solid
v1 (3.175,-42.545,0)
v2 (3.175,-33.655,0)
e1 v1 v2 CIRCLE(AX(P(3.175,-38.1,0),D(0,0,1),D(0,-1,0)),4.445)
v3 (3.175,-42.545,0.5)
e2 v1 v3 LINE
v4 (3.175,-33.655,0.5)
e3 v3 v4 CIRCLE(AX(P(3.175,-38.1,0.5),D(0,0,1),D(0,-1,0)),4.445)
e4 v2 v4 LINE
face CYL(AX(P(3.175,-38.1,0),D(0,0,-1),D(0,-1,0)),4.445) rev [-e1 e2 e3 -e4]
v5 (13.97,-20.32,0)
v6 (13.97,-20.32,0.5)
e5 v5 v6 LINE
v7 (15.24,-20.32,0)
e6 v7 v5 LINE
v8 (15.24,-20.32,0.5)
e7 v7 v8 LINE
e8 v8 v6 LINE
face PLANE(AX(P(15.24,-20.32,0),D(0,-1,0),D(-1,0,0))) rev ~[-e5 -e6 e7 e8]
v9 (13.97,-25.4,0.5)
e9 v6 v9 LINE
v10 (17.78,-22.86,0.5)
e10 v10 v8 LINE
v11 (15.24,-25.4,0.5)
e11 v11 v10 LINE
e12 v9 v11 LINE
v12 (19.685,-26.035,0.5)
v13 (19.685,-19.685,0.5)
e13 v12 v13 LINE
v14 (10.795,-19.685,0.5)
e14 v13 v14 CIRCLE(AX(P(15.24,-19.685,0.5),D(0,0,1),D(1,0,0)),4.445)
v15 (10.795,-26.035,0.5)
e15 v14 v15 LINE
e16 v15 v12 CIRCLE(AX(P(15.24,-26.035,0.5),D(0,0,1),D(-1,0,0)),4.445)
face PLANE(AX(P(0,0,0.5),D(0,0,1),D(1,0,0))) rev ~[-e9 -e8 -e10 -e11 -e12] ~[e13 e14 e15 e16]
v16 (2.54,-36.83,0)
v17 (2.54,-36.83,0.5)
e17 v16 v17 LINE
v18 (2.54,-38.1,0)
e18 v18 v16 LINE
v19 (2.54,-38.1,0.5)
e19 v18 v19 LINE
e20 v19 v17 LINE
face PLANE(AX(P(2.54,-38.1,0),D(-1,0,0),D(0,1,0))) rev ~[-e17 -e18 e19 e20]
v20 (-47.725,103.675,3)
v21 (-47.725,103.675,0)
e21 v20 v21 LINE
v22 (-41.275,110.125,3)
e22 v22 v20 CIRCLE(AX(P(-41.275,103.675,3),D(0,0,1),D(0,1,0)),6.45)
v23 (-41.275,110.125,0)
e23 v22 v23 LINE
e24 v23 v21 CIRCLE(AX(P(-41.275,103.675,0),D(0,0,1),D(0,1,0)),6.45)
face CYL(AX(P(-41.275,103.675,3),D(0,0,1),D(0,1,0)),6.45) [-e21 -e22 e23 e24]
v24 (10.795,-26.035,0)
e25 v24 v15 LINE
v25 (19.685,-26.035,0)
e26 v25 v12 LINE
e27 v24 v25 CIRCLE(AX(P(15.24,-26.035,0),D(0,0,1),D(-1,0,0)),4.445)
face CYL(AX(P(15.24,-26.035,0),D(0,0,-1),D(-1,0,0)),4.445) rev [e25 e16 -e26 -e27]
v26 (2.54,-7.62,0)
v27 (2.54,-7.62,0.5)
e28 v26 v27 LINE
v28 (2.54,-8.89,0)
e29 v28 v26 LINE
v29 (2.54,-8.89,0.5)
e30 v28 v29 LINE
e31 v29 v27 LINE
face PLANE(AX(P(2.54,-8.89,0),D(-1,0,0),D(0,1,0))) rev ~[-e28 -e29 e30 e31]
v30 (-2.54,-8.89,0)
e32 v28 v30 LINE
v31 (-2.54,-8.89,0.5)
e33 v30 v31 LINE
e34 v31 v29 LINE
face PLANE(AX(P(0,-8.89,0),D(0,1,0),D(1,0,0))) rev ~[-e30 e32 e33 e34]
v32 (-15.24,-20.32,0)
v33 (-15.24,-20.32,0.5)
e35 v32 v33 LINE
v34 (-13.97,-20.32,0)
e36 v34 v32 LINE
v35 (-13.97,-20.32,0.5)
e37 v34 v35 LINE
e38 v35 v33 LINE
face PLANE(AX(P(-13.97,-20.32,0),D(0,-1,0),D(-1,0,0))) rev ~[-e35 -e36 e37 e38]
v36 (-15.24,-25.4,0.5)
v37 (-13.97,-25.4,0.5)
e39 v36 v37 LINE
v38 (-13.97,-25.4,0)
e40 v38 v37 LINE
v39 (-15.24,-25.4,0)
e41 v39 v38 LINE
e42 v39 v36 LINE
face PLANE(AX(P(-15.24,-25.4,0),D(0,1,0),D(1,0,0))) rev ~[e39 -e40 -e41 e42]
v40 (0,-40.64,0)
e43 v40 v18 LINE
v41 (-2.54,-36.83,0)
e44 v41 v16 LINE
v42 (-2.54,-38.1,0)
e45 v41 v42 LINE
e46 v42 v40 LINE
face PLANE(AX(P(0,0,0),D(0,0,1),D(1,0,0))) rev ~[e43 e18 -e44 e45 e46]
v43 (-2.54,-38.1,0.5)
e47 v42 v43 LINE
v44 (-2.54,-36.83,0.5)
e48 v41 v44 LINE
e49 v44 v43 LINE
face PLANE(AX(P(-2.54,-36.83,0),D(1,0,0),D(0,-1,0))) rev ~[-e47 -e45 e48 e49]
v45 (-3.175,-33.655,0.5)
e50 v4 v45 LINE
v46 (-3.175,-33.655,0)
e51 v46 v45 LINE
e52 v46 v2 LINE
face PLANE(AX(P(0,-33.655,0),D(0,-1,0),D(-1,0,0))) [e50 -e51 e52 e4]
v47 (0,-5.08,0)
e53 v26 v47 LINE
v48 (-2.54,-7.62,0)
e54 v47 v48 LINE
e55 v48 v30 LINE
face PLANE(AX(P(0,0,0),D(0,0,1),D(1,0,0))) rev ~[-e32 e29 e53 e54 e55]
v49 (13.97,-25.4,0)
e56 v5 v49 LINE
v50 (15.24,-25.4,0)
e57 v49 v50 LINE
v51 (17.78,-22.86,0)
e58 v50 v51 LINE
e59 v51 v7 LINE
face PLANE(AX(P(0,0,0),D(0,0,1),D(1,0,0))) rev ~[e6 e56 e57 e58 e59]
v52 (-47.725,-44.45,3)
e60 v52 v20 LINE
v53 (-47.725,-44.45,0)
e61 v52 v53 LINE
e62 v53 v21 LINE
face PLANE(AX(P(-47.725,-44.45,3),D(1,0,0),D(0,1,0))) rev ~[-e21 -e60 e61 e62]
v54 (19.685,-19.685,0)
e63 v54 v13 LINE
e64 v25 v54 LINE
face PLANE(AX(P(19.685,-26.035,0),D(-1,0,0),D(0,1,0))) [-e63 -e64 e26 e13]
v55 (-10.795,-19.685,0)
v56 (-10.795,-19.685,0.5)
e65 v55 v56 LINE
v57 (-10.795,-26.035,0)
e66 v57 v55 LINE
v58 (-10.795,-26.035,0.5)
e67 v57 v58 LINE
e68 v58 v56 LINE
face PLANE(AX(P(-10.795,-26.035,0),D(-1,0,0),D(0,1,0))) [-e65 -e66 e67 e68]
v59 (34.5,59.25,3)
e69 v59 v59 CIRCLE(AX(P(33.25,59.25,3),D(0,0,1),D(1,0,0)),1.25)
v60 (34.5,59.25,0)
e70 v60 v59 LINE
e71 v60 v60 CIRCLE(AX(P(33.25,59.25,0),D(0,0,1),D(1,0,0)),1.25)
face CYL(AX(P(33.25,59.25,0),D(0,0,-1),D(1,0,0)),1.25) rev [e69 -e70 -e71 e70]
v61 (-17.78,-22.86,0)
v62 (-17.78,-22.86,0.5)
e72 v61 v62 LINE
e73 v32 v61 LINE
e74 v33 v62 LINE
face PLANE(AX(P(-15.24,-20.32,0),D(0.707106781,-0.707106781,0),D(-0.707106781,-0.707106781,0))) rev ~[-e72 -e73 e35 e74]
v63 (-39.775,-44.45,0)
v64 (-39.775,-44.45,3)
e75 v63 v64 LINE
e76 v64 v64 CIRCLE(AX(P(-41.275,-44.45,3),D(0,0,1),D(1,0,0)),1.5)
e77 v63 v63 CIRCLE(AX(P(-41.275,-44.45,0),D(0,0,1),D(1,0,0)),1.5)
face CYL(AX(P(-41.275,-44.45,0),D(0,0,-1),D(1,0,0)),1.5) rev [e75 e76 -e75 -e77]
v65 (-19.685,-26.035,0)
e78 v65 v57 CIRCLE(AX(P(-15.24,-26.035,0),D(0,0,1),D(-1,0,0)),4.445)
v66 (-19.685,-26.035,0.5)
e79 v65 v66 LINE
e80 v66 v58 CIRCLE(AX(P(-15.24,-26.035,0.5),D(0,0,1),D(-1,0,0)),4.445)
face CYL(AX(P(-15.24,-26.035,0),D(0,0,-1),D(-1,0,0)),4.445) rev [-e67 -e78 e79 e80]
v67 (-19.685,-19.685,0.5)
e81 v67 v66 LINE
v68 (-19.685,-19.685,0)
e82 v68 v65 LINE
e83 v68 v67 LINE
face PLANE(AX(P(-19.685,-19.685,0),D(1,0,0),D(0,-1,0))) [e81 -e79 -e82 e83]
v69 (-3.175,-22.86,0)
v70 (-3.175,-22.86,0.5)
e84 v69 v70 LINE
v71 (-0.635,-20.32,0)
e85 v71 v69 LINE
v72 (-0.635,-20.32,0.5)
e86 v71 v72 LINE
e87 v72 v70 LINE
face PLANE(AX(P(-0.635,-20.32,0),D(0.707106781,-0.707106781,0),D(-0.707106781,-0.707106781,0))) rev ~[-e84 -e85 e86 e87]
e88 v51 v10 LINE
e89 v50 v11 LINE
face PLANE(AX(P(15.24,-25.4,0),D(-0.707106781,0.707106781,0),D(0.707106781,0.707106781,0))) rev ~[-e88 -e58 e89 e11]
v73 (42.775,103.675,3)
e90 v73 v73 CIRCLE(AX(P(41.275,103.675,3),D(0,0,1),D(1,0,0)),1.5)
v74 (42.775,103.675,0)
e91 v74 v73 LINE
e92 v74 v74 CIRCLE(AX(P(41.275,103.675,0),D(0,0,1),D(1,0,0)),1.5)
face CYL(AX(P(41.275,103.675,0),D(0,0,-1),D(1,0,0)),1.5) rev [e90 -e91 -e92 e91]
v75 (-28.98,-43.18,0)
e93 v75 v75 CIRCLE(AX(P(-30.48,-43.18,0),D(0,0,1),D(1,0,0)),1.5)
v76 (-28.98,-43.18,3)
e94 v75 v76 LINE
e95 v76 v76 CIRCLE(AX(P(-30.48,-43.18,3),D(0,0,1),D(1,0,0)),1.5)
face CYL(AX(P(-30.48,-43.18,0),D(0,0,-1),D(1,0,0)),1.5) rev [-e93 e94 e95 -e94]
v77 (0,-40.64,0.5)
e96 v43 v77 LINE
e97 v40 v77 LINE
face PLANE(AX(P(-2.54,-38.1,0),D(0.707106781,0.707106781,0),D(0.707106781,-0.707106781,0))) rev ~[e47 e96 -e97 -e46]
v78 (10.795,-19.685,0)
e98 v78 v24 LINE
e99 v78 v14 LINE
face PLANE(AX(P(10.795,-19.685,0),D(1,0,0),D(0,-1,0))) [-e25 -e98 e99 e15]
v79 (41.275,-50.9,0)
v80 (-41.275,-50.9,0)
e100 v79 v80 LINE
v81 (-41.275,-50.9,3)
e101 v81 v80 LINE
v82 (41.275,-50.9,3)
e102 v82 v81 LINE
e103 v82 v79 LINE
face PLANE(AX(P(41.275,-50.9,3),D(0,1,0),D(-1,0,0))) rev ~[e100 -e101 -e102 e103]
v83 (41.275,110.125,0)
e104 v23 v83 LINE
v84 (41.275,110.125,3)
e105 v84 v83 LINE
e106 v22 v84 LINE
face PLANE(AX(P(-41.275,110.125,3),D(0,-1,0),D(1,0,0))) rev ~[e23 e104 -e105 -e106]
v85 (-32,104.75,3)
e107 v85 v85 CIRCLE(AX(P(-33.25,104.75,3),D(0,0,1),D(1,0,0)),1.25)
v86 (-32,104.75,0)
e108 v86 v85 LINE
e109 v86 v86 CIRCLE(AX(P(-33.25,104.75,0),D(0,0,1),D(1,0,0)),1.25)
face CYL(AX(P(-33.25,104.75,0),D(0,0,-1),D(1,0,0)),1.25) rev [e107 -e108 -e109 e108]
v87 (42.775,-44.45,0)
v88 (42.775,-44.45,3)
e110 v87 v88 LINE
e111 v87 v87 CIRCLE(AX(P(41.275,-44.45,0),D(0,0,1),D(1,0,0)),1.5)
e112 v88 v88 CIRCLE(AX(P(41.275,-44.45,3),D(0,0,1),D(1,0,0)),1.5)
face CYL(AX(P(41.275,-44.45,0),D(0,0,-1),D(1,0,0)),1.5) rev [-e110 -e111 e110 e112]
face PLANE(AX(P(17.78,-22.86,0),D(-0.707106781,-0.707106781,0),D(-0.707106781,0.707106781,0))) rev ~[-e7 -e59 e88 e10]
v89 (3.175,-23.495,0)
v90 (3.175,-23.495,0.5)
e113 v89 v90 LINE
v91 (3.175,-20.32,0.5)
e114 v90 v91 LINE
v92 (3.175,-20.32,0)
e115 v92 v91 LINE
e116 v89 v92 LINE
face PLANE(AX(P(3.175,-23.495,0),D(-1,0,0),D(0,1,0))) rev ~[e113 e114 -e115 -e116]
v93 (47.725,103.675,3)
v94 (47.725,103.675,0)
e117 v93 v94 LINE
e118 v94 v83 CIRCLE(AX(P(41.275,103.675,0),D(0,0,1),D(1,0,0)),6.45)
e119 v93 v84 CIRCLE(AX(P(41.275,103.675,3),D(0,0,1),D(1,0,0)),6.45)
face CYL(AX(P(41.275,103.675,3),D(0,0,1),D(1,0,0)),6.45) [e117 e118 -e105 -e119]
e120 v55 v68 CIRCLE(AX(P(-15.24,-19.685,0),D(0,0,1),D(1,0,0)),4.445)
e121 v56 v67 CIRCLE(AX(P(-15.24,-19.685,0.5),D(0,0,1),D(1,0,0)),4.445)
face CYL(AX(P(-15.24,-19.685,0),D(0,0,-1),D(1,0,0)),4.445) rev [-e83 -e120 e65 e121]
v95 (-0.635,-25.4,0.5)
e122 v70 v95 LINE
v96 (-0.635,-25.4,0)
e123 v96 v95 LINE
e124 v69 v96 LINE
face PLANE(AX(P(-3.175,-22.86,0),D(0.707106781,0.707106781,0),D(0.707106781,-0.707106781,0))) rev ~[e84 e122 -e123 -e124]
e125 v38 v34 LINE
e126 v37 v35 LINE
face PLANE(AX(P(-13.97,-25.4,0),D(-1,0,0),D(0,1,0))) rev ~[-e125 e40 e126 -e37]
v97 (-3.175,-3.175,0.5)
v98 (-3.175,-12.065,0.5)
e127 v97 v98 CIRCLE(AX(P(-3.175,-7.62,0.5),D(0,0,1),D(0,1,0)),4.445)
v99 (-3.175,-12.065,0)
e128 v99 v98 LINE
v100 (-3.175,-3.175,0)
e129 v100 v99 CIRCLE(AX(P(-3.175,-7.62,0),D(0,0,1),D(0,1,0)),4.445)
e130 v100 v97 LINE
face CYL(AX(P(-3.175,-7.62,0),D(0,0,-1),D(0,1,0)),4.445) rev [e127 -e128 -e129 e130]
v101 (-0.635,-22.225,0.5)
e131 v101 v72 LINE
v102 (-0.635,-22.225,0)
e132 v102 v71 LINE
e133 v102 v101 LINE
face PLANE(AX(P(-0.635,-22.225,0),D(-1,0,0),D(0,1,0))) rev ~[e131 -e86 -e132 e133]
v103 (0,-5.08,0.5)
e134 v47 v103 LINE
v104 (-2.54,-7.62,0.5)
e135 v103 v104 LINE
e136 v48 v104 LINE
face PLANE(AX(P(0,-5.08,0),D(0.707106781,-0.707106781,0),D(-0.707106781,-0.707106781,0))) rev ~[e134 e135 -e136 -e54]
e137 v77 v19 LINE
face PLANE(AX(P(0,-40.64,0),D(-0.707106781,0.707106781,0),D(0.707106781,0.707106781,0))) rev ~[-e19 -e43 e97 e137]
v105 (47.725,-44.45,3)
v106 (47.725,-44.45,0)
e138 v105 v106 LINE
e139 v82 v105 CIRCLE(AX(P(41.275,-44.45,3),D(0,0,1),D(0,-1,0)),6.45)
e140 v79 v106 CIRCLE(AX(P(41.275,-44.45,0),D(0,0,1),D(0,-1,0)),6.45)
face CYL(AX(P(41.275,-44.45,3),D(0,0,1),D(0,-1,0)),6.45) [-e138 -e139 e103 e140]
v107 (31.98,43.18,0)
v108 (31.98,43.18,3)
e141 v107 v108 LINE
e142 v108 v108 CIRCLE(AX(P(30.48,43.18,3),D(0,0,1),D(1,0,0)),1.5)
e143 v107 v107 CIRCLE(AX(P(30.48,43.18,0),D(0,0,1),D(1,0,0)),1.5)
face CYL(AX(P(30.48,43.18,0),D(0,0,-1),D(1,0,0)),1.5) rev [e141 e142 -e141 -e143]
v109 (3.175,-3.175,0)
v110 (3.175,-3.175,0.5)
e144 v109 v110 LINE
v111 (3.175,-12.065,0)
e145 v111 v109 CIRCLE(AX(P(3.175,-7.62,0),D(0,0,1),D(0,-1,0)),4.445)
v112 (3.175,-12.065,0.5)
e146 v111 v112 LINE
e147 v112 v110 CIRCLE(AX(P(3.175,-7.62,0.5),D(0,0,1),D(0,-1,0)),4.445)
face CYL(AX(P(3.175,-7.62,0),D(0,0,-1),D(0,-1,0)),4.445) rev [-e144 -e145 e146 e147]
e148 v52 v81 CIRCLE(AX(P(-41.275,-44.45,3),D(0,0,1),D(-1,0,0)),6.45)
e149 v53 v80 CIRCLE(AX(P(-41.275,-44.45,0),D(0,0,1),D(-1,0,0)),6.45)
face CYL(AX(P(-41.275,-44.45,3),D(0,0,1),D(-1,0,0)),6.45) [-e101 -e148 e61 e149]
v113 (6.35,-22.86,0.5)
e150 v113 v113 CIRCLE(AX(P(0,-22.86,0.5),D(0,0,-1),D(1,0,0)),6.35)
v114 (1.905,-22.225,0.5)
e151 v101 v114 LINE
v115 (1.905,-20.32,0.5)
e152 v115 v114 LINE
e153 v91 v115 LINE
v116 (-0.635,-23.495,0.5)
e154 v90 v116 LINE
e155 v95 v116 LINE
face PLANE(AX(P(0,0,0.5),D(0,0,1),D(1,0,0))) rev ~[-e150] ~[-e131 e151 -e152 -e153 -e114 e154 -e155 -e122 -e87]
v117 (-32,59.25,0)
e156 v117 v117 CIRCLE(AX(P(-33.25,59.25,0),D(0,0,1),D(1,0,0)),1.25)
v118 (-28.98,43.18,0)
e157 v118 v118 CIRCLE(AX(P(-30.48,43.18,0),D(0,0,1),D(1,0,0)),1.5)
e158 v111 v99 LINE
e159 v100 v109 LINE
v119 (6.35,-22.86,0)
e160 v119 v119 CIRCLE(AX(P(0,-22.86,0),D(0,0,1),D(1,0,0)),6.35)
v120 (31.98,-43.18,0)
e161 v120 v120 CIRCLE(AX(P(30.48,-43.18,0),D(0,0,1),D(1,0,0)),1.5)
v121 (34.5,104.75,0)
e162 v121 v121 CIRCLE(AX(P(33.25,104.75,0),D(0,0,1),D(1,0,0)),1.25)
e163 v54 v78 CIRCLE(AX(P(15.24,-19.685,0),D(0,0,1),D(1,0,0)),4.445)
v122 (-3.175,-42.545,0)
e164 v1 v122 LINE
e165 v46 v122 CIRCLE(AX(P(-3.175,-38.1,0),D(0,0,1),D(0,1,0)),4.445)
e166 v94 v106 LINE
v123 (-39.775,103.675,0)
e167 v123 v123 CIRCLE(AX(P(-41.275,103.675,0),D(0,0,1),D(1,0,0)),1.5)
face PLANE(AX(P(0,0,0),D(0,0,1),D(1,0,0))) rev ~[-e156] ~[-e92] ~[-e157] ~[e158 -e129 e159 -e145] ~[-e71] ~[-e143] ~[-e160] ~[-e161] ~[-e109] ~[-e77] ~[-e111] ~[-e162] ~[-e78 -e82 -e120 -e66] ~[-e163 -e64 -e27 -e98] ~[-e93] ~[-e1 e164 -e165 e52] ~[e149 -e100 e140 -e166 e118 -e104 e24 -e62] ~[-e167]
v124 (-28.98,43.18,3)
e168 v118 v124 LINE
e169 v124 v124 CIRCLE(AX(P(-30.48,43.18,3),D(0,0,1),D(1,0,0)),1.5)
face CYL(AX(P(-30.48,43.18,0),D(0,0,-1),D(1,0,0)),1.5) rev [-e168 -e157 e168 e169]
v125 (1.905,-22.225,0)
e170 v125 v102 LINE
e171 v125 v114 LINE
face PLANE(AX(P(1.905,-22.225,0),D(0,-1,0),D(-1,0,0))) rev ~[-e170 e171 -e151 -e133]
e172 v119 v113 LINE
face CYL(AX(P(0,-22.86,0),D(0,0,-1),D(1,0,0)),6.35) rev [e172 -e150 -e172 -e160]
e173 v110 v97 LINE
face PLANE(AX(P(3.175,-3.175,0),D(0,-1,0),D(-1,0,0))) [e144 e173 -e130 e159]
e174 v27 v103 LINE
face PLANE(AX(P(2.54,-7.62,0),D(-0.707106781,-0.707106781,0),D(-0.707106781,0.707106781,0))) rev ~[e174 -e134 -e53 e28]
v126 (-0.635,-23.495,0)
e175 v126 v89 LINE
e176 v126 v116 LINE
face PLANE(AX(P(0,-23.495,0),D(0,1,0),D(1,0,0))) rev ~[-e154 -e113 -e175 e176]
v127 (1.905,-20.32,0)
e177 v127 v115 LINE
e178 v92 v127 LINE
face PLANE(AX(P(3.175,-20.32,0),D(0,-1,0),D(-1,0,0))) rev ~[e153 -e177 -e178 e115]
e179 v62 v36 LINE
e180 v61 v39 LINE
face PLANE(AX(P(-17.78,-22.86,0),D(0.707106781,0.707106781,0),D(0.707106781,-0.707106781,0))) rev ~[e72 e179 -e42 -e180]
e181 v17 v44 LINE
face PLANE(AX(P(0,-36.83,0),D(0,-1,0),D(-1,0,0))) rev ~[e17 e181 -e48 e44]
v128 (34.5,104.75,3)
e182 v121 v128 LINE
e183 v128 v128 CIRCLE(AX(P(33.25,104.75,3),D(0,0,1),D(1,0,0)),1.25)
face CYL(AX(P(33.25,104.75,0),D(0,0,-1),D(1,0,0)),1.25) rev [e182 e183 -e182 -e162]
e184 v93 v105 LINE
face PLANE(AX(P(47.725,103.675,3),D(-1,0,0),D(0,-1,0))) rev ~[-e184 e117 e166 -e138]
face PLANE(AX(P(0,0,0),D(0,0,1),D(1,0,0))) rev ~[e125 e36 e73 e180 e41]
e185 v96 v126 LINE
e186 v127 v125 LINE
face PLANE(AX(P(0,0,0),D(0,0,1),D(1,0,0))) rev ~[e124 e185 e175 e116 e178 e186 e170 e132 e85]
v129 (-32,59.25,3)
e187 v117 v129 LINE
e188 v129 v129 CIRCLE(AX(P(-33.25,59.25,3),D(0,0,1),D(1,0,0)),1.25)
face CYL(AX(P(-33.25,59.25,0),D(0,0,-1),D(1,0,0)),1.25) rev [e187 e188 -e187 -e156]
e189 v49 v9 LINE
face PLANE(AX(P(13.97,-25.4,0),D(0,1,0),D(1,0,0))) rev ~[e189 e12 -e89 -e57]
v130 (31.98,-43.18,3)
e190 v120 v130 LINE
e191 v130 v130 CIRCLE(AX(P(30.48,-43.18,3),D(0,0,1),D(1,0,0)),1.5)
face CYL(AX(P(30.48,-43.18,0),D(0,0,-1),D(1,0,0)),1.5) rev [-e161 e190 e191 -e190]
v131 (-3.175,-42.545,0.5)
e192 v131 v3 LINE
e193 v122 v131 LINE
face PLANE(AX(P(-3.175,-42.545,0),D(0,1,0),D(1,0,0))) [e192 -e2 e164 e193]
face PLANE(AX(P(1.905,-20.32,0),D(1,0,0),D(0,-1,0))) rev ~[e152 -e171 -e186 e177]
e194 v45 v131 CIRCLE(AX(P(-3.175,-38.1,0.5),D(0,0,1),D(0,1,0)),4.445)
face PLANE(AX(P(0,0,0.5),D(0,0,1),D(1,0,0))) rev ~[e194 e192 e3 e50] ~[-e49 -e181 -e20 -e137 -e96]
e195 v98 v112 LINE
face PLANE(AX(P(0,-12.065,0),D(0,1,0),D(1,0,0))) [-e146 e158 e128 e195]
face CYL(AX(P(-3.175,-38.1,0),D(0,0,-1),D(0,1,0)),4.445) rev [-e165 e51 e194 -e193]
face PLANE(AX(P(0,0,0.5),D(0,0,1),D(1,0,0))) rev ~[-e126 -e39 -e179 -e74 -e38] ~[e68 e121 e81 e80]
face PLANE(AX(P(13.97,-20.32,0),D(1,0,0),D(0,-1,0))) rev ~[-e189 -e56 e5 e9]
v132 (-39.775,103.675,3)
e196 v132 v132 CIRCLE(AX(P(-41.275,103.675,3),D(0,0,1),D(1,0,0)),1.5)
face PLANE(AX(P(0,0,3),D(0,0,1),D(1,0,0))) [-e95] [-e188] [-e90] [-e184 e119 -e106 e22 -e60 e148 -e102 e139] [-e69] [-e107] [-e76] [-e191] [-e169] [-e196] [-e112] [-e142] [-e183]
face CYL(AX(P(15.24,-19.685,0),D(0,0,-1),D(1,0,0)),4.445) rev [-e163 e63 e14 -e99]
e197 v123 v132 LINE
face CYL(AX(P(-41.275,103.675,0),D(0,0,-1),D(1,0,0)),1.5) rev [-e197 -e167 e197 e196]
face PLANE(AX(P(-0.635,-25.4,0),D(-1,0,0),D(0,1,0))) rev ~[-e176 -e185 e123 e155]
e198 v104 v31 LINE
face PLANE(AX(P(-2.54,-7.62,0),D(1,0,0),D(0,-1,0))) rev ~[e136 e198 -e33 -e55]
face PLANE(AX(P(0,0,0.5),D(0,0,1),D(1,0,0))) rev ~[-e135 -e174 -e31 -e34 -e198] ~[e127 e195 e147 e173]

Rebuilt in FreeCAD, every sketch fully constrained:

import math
import FreeCAD as App
import Part
import Sketcher
from FreeCAD import Vector
Q = App.Units.Quantity

doc = App.newDocument("Part")
body = doc.addObject("PartDesign::Body", "Body")

# Sketch on XY plane
sketch1 = body.newObject("Sketcher::SketchObject", "Sketch")
sketch1.AttachmentSupport = (doc.getObject("XY_Plane"), [""])
sketch1.MapMode = "FlatFace"
sketch1.addGeometry([
    Part.LineSegment(Vector(41.275, 110.025, 0), Vector(-41.275, 110.025, 0)),  # 0
    Part.ArcOfCircle(Part.Circle(Vector(-41.275, 103.675, 0), Vector(0, 0, 1), 6.35), math.radians(90), math.radians(180)),  # 1
    Part.LineSegment(Vector(-47.625, 103.675, 0), Vector(-47.625, -44.45, 0)),  # 2
    Part.ArcOfCircle(Part.Circle(Vector(-41.275, -44.45, 0), Vector(0, 0, 1), 6.35), math.radians(180), math.radians(270)),  # 3
    Part.LineSegment(Vector(-41.275, -50.8, 0), Vector(41.275, -50.8, 0)),  # 4
    Part.ArcOfCircle(Part.Circle(Vector(41.275, -44.45, 0), Vector(0, 0, 1), 6.35), math.radians(-90), math.radians(0)),  # 5
    Part.LineSegment(Vector(47.625, -44.45, 0), Vector(47.625, 103.675, 0)),  # 6
    Part.ArcOfCircle(Part.Circle(Vector(41.275, 103.675, 0), Vector(0, 0, 1), 6.35), math.radians(0), math.radians(90)),  # 7
    Part.Circle(Vector(33.25, 104.75, 0), Vector(0, 0, 1), 1.25),  # 8
    Part.Circle(Vector(41.275, 103.675, 0), Vector(0, 0, 1), 1.5),  # 9
    Part.Circle(Vector(30.48, -43.18, 0), Vector(0, 0, 1), 1.5),  # 10
    Part.Circle(Vector(41.275, -44.45, 0), Vector(0, 0, 1), 1.5),  # 11
    Part.Circle(Vector(30.48, 43.18, 0), Vector(0, 0, 1), 1.5),  # 12
    Part.Circle(Vector(33.25, 59.25, 0), Vector(0, 0, 1), 1.25),  # 13
    Part.Circle(Vector(-30.48, 43.18, 0), Vector(0, 0, 1), 1.5),  # 14
    Part.Circle(Vector(-33.25, 59.25, 0), Vector(0, 0, 1), 1.25),  # 15
    Part.Circle(Vector(-41.275, 103.675, 0), Vector(0, 0, 1), 1.5),  # 16
    Part.Circle(Vector(-33.25, 104.75, 0), Vector(0, 0, 1), 1.25),  # 17
    Part.Circle(Vector(-41.275, -44.45, 0), Vector(0, 0, 1), 1.5),  # 18
    Part.Circle(Vector(-30.48, -43.18, 0), Vector(0, 0, 1), 1.5),  # 19
], False)
sketch1.addConstraint([
    Sketcher.Constraint("Tangent", 0, 2, 1, 1),
    Sketcher.Constraint("Tangent", 1, 2, 2, 1),
    Sketcher.Constraint("Tangent", 2, 2, 3, 1),
    Sketcher.Constraint("Tangent", 3, 2, 4, 1),
    Sketcher.Constraint("Tangent", 4, 2, 5, 1),
    Sketcher.Constraint("Tangent", 5, 2, 6, 1),
    Sketcher.Constraint("Tangent", 6, 2, 7, 1),
    Sketcher.Constraint("Tangent", 7, 2, 0, 1),
    Sketcher.Constraint("Horizontal", 0),
    Sketcher.Constraint("Vertical", 2),
    Sketcher.Constraint("Horizontal", 4),
    Sketcher.Constraint("Vertical", 6),
    Sketcher.Constraint("Coincident", 9, 3, 7, 3),
    Sketcher.Constraint("Coincident", 11, 3, 5, 3),
    Sketcher.Constraint("Coincident", 16, 3, 1, 3),
    Sketcher.Constraint("Coincident", 18, 3, 3, 3),
    Sketcher.Constraint("Equal", 1, 3),
    Sketcher.Constraint("Equal", 3, 5),
    Sketcher.Constraint("Equal", 5, 7),
    Sketcher.Constraint("Equal", 9, 10),
    Sketcher.Constraint("Equal", 10, 11),
    Sketcher.Constraint("Equal", 11, 12),
    Sketcher.Constraint("Equal", 8, 13),
    Sketcher.Constraint("Equal", 12, 14),
    Sketcher.Constraint("Equal", 13, 15),
    Sketcher.Constraint("Equal", 14, 16),
    Sketcher.Constraint("Equal", 15, 17),
    Sketcher.Constraint("Equal", 16, 18),
    Sketcher.Constraint("Equal", 18, 19),
    Sketcher.Constraint("Symmetric", 10, 3, 14, 3, -1, 1),
    Sketcher.Constraint("Symmetric", 12, 3, 19, 3, -1, 1),
    Sketcher.Constraint("Symmetric", 12, 3, 14, 3, -2),
    Sketcher.Constraint("Symmetric", 13, 3, 15, 3, -2),
    Sketcher.Constraint("Symmetric", 8, 3, 17, 3, -2),
    Sketcher.Constraint("Vertical", 8, 3, 13, 3),
    Sketcher.Constraint("Radius", 1, Q("0.25 in")),
    Sketcher.Constraint("Diameter", 9, Q("0.1181 in")),
    Sketcher.Constraint("DistanceX", 2, 2, 5, 3, Q("3.5 in")),
    Sketcher.Constraint("Diameter", 8, 2.5),
    Sketcher.Constraint("DistanceY", 5, 3, 10, 3, Q("0.05 in")),
    Sketcher.Constraint("DistanceY", 3, 2, -1, 1, Q("2 in")),
    Sketcher.Constraint("DistanceX", -1, 1, 10, 3, Q("1.2 in")),
    Sketcher.Constraint("DistanceX", 15, 3, 13, 3, Q("2.6181 in")),
    Sketcher.Constraint("DistanceY", 13, 3, 8, 3, 45.5),
    Sketcher.Constraint("DistanceY", 2, 2, 2, 1, Q("5.8317 in")),
    Sketcher.Constraint("DistanceX", 1, 3, -1, 1, Q("1.625 in")),
    Sketcher.Constraint("DistanceY", -1, 1, 8, 3, 104.75),
])
pad1 = body.newObject("PartDesign::Pad", "Pad")
pad1.Profile = sketch1
pad1.Length = Q("0.1181102 in")

# Sketch on XY plane
sketch2 = body.newObject("Sketcher::SketchObject", "Sketch001")
sketch2.AttachmentSupport = (doc.getObject("XY_Plane"), [""])
sketch2.MapMode = "FlatFace"
sketch2.addGeometry([
    Part.Circle(Vector(0, -22.86, 0), Vector(0, 0, 1), 6.35),  # 0
    Part.LineSegment(Vector(3.175, -23.495, 0), Vector(-0.635, -23.495, 0)),  # 1
    Part.LineSegment(Vector(-0.635, -23.495, 0), Vector(-0.635, -25.4, 0)),  # 2
    Part.LineSegment(Vector(-0.635, -25.4, 0), Vector(-3.175, -22.86, 0)),  # 3
    Part.LineSegment(Vector(-3.175, -22.86, 0), Vector(-0.635, -20.32, 0)),  # 4
    Part.LineSegment(Vector(-0.635, -20.32, 0), Vector(-0.635, -22.225, 0)),  # 5
    Part.LineSegment(Vector(-0.635, -22.225, 0), Vector(1.905, -22.225, 0)),  # 6
    Part.LineSegment(Vector(1.905, -22.225, 0), Vector(1.905, -20.32, 0)),  # 7
    Part.LineSegment(Vector(1.905, -20.32, 0), Vector(3.175, -20.32, 0)),  # 8
    Part.LineSegment(Vector(3.175, -20.32, 0), Vector(3.175, -23.495, 0)),  # 9
    Part.LineSegment(Vector(3.175, -3.175, 0), Vector(-3.175, -3.175, 0)),  # 10
    Part.ArcOfCircle(Part.Circle(Vector(-3.175, -7.62, 0), Vector(0, 0, 1), 4.445), math.radians(90), math.radians(270)),  # 11
    Part.LineSegment(Vector(-3.175, -12.065, 0), Vector(3.175, -12.065, 0)),  # 12
    Part.ArcOfCircle(Part.Circle(Vector(3.175, -7.62, 0), Vector(0, 0, 1), 4.445), math.radians(-90), math.radians(90)),  # 13
    Part.LineSegment(Vector(2.54, -8.89, 0), Vector(-2.54, -8.89, 0)),  # 14
    Part.LineSegment(Vector(-2.54, -8.89, 0), Vector(-2.54, -7.62, 0)),  # 15
    Part.LineSegment(Vector(-2.54, -7.62, 0), Vector(0, -5.08, 0)),  # 16
    Part.LineSegment(Vector(0, -5.08, 0), Vector(2.54, -7.62, 0)),  # 17
    Part.LineSegment(Vector(2.54, -7.62, 0), Vector(2.54, -8.89, 0)),  # 18
    Part.LineSegment(Vector(-3.175, -42.545, 0), Vector(3.175, -42.545, 0)),  # 19
    Part.ArcOfCircle(Part.Circle(Vector(3.175, -38.1, 0), Vector(0, 0, 1), 4.445), math.radians(-90), math.radians(90)),  # 20
    Part.LineSegment(Vector(3.175, -33.655, 0), Vector(-3.175, -33.655, 0)),  # 21
    Part.ArcOfCircle(Part.Circle(Vector(-3.175, -38.1, 0), Vector(0, 0, 1), 4.445), math.radians(90), math.radians(270)),  # 22
    Part.LineSegment(Vector(-2.54, -36.83, 0), Vector(2.54, -36.83, 0)),  # 23
    Part.LineSegment(Vector(2.54, -36.83, 0), Vector(2.54, -38.1, 0)),  # 24
    Part.LineSegment(Vector(2.54, -38.1, 0), Vector(0, -40.64, 0)),  # 25
    Part.LineSegment(Vector(0, -40.64, 0), Vector(-2.54, -38.1, 0)),  # 26
    Part.LineSegment(Vector(-2.54, -38.1, 0), Vector(-2.54, -36.83, 0)),  # 27
    Part.LineSegment(Vector(-19.685, -19.685, 0), Vector(-19.685, -26.035, 0)),  # 28
    Part.ArcOfCircle(Part.Circle(Vector(-15.24, -26.035, 0), Vector(0, 0, 1), 4.445), math.radians(180), math.radians(360)),  # 29
    Part.LineSegment(Vector(-10.795, -26.035, 0), Vector(-10.795, -19.685, 0)),  # 30
    Part.ArcOfCircle(Part.Circle(Vector(-15.24, -19.685, 0), Vector(0, 0, 1), 4.445), math.radians(0), math.radians(180)),  # 31
    Part.LineSegment(Vector(-13.97, -20.32, 0), Vector(-13.97, -25.4, 0)),  # 32
    Part.LineSegment(Vector(-13.97, -25.4, 0), Vector(-15.24, -25.4, 0)),  # 33
    Part.LineSegment(Vector(-15.24, -25.4, 0), Vector(-17.78, -22.86, 0)),  # 34
    Part.LineSegment(Vector(-17.78, -22.86, 0), Vector(-15.24, -20.32, 0)),  # 35
    Part.LineSegment(Vector(-15.24, -20.32, 0), Vector(-13.97, -20.32, 0)),  # 36
    Part.LineSegment(Vector(19.685, -26.035, 0), Vector(19.685, -19.685, 0)),  # 37
    Part.ArcOfCircle(Part.Circle(Vector(15.24, -19.685, 0), Vector(0, 0, 1), 4.445), math.radians(0), math.radians(180)),  # 38
    Part.LineSegment(Vector(10.795, -19.685, 0), Vector(10.795, -26.035, 0)),  # 39
    Part.ArcOfCircle(Part.Circle(Vector(15.24, -26.035, 0), Vector(0, 0, 1), 4.445), math.radians(180), math.radians(360)),  # 40
    Part.LineSegment(Vector(13.97, -25.4, 0), Vector(13.97, -20.32, 0)),  # 41
    Part.LineSegment(Vector(13.97, -20.32, 0), Vector(15.24, -20.32, 0)),  # 42
    Part.LineSegment(Vector(15.24, -20.32, 0), Vector(17.78, -22.86, 0)),  # 43
    Part.LineSegment(Vector(17.78, -22.86, 0), Vector(15.24, -25.4, 0)),  # 44
    Part.LineSegment(Vector(15.24, -25.4, 0), Vector(13.97, -25.4, 0)),  # 45
], False)
sketch2.addConstraint([
    Sketcher.Constraint("Coincident", 1, 2, 2, 1),
    Sketcher.Constraint("Coincident", 2, 2, 3, 1),
    Sketcher.Constraint("Coincident", 3, 2, 4, 1),
    Sketcher.Constraint("Coincident", 4, 2, 5, 1),
    Sketcher.Constraint("Coincident", 5, 2, 6, 1),
    Sketcher.Constraint("Coincident", 6, 2, 7, 1),
    Sketcher.Constraint("Coincident", 7, 2, 8, 1),
    Sketcher.Constraint("Coincident", 8, 2, 9, 1),
    Sketcher.Constraint("Coincident", 9, 2, 1, 1),
    Sketcher.Constraint("Tangent", 10, 2, 11, 1),
    Sketcher.Constraint("Tangent", 11, 2, 12, 1),
    Sketcher.Constraint("Tangent", 12, 2, 13, 1),
    Sketcher.Constraint("Tangent", 13, 2, 10, 1),
    Sketcher.Constraint("Coincident", 14, 2, 15, 1),
    Sketcher.Constraint("Coincident", 15, 2, 16, 1),
    Sketcher.Constraint("Coincident", 16, 2, 17, 1),
    Sketcher.Constraint("Coincident", 17, 2, 18, 1),
    Sketcher.Constraint("Coincident", 18, 2, 14, 1),
    Sketcher.Constraint("Tangent", 19, 2, 20, 1),
    Sketcher.Constraint("Tangent", 20, 2, 21, 1),
    Sketcher.Constraint("Tangent", 21, 2, 22, 1),
    Sketcher.Constraint("Tangent", 22, 2, 19, 1),
    Sketcher.Constraint("Coincident", 23, 2, 24, 1),
    Sketcher.Constraint("Coincident", 24, 2, 25, 1),
    Sketcher.Constraint("Coincident", 25, 2, 26, 1),
    Sketcher.Constraint("Coincident", 26, 2, 27, 1),
    Sketcher.Constraint("Coincident", 27, 2, 23, 1),
    Sketcher.Constraint("Tangent", 28, 2, 29, 1),
    Sketcher.Constraint("Tangent", 29, 2, 30, 1),
    Sketcher.Constraint("Tangent", 30, 2, 31, 1),
    Sketcher.Constraint("Tangent", 31, 2, 28, 1),
    Sketcher.Constraint("Coincident", 32, 2, 33, 1),
    Sketcher.Constraint("Coincident", 33, 2, 34, 1),
    Sketcher.Constraint("Coincident", 34, 2, 35, 1),
    Sketcher.Constraint("Coincident", 35, 2, 36, 1),
    Sketcher.Constraint("Coincident", 36, 2, 32, 1),
    Sketcher.Constraint("Tangent", 37, 2, 38, 1),
    Sketcher.Constraint("Tangent", 38, 2, 39, 1),
    Sketcher.Constraint("Tangent", 39, 2, 40, 1),
    Sketcher.Constraint("Tangent", 40, 2, 37, 1),
    Sketcher.Constraint("Coincident", 41, 2, 42, 1),
    Sketcher.Constraint("Coincident", 42, 2, 43, 1),
    Sketcher.Constraint("Coincident", 43, 2, 44, 1),
    Sketcher.Constraint("Coincident", 44, 2, 45, 1),
    Sketcher.Constraint("Coincident", 45, 2, 41, 1),
    Sketcher.Constraint("Horizontal", 1),
    Sketcher.Constraint("Vertical", 2),
    Sketcher.Constraint("Vertical", 5),
    Sketcher.Constraint("Horizontal", 6),
    Sketcher.Constraint("Vertical", 7),
    Sketcher.Constraint("Horizontal", 8),
    Sketcher.Constraint("Vertical", 9),
    Sketcher.Constraint("Horizontal", 10),
    Sketcher.Constraint("Horizontal", 12),
    Sketcher.Constraint("Horizontal", 14),
    Sketcher.Constraint("Vertical", 15),
    Sketcher.Constraint("Vertical", 18),
    Sketcher.Constraint("Horizontal", 19),
    Sketcher.Constraint("Horizontal", 21),
    Sketcher.Constraint("Horizontal", 23),
    Sketcher.Constraint("Vertical", 24),
    Sketcher.Constraint("Vertical", 27),
    Sketcher.Constraint("Vertical", 28),
    Sketcher.Constraint("Vertical", 30),
    Sketcher.Constraint("Vertical", 32),
    Sketcher.Constraint("Horizontal", 33),
    Sketcher.Constraint("Horizontal", 36),
    Sketcher.Constraint("Vertical", 37),
    Sketcher.Constraint("Vertical", 39),
    Sketcher.Constraint("Vertical", 41),
    Sketcher.Constraint("Horizontal", 42),
    Sketcher.Constraint("Horizontal", 45),
    Sketcher.Constraint("Equal", 13, 20),
    Sketcher.Constraint("Equal", 22, 29),
    Sketcher.Constraint("Equal", 31, 38),
    Sketcher.Constraint("Symmetric", 31, 3, 38, 3, -2),
    Sketcher.Constraint("Symmetric", 15, 2, 17, 2, -2),
    Sketcher.Constraint("Symmetric", 24, 2, 26, 2, -2),
    Sketcher.Constraint("Symmetric", 36, 2, 41, 2, -2),
    Sketcher.Constraint("Symmetric", 34, 2, 43, 2, -2),
    Sketcher.Constraint("Symmetric", 33, 2, 44, 2, -2),
    Sketcher.Constraint("PointOnObject", 0, 3, -2),
    Sketcher.Constraint("PointOnObject", 16, 2, -2),
    Sketcher.Constraint("PointOnObject", 25, 2, -2),
    Sketcher.Constraint("Perpendicular", 3, 4),
    Sketcher.Constraint("Parallel", 4, 16),
    Sketcher.Constraint("Perpendicular", 16, 17),
    Sketcher.Constraint("Perpendicular", 17, 25),
    Sketcher.Constraint("Parallel", 26, 34),
    Sketcher.Constraint("Perpendicular", 34, 35),
    Sketcher.Constraint("Perpendicular", 35, 43),
    Sketcher.Constraint("Horizontal", 29, 3, 40, 3),
    Sketcher.Constraint("Horizontal", 0, 3, 3, 2),
    Sketcher.Constraint("Horizontal", 4, 2, 7, 2),
    Sketcher.Constraint("Horizontal", 13, 3, 15, 2),
    Sketcher.Constraint("Horizontal", 22, 3, 24, 2),
    Sketcher.Constraint("Horizontal", 2, 2, 32, 2),
    Sketcher.Constraint("Horizontal", 3, 2, 34, 2),
    Sketcher.Constraint("Horizontal", 8, 2, 35, 2),
    Sketcher.Constraint("Vertical", 13, 3, 20, 3),
    Sketcher.Constraint("Vertical", 11, 3, 22, 3),
    Sketcher.Constraint("Vertical", 22, 3, 3, 2),
    Sketcher.Constraint("Vertical", 2, 2, 4, 2),
    Sketcher.Constraint("Vertical", 20, 3, 8, 2),
    Sketcher.Constraint("Vertical", 18, 2, 23, 2),
    Sketcher.Constraint("Vertical", 31, 3, 33, 2),
    Sketcher.Constraint("Equal", 8, 33),
    Sketcher.Constraint("Equal", 2, 5),
    Sketcher.Constraint("Equal", 45, 15),
    Sketcher.Constraint("Equal", 18, 24),
    Sketcher.Constraint("Equal", 21, 28),
    Sketcher.Constraint("Equal", 23, 32),
    Sketcher.Constraint("Diameter", 0, Q("0.5 in")),
    Sketcher.Constraint("DistanceX", 6, 1, 6, 2, Q("0.1 in")),
    Sketcher.Constraint("DistanceX", 14, 2, 14, 1, Q("0.2 in")),
    Sketcher.Constraint("DistanceY", 2, 2, -1, 1, Q("1 in")),
    Sketcher.Constraint("Radius", 11, Q("0.175 in")),
    Sketcher.Constraint("DistanceX", 1, 2, 1, 1, Q("0.15 in")),
    Sketcher.Constraint("DistanceX", 29, 3, -1, 1, Q("0.6 in")),
    Sketcher.Constraint("DistanceY", 16, 2, -1, 1, Q("0.2 in")),
    Sketcher.Constraint("DistanceY", 20, 3, 0, 3, Q("0.6 in")),
    Sketcher.Constraint("DistanceY", 29, 3, 1, 2, Q("0.1 in")),
    Sketcher.Constraint("DistanceY", 20, 2, 9, 2, Q("0.4 in")),
    Sketcher.Constraint("DistanceX", 29, 2, 2, 2, Q("0.4 in")),
])
pocket1 = body.newObject("PartDesign::Pocket", "Pocket")
pocket1.Profile = sketch2
pocket1.Length = 0.5
pocket1.Reversed = True

# Sketch on XY plane
sketch3 = body.newObject("Sketcher::SketchObject", "Sketch002")
sketch3.AttachmentSupport = (doc.getObject("XY_Plane"), [""])
sketch3.MapMode = "FlatFace"
sketch3.AttachmentOffset = App.Placement(Vector(0, 0, 0.1181102 * 25.4), App.Rotation())
sketch3.addGeometry([
    Part.LineSegment(Vector(41.275, 110.125, 0), Vector(-41.275, 110.125, 0)),  # 0
    Part.ArcOfCircle(Part.Circle(Vector(-41.275, 103.675, 0), Vector(0, 0, 1), 6.45), math.radians(90), math.radians(180)),  # 1
    Part.LineSegment(Vector(-47.725, 103.675, 0), Vector(-47.725, -44.45, 0)),  # 2
    Part.ArcOfCircle(Part.Circle(Vector(-41.275, -44.45, 0), Vector(0, 0, 1), 6.45), math.radians(180), math.radians(270)),  # 3
    Part.LineSegment(Vector(-41.275, -50.9, 0), Vector(41.275, -50.9, 0)),  # 4
    Part.ArcOfCircle(Part.Circle(Vector(41.275, -44.45, 0), Vector(0, 0, 1), 6.45), math.radians(-90), math.radians(0)),  # 5
    Part.LineSegment(Vector(47.725, -44.45, 0), Vector(47.725, 103.675, 0)),  # 6
    Part.ArcOfCircle(Part.Circle(Vector(41.275, 103.675, 0), Vector(0, 0, 1), 6.45), math.radians(0), math.radians(90)),  # 7
    Part.LineSegment(Vector(-41.275, 110.025, 0), Vector(41.275, 110.025, 0)),  # 8
    Part.ArcOfCircle(Part.Circle(Vector(41.275, 103.675, 0), Vector(0, 0, 1), 6.35), math.radians(0), math.radians(90)),  # 9
    Part.LineSegment(Vector(47.625, 103.675, 0), Vector(47.625, -44.45, 0)),  # 10
    Part.ArcOfCircle(Part.Circle(Vector(41.275, -44.45, 0), Vector(0, 0, 1), 6.35), math.radians(-90), math.radians(0)),  # 11
    Part.LineSegment(Vector(41.275, -50.8, 0), Vector(-41.275, -50.8, 0)),  # 12
    Part.ArcOfCircle(Part.Circle(Vector(-41.275, -44.45, 0), Vector(0, 0, 1), 6.35), math.radians(180), math.radians(270)),  # 13
    Part.LineSegment(Vector(-47.625, -44.45, 0), Vector(-47.625, 103.675, 0)),  # 14
    Part.ArcOfCircle(Part.Circle(Vector(-41.275, 103.675, 0), Vector(0, 0, 1), 6.35), math.radians(90), math.radians(180)),  # 15
], False)
sketch3.addConstraint([
    Sketcher.Constraint("Tangent", 0, 2, 1, 1),
    Sketcher.Constraint("Tangent", 1, 2, 2, 1),
    Sketcher.Constraint("Tangent", 2, 2, 3, 1),
    Sketcher.Constraint("Tangent", 3, 2, 4, 1),
    Sketcher.Constraint("Tangent", 4, 2, 5, 1),
    Sketcher.Constraint("Tangent", 5, 2, 6, 1),
    Sketcher.Constraint("Tangent", 6, 2, 7, 1),
    Sketcher.Constraint("Tangent", 7, 2, 0, 1),
    Sketcher.Constraint("Tangent", 8, 2, 9, 2),
    Sketcher.Constraint("Tangent", 9, 1, 10, 1),
    Sketcher.Constraint("Tangent", 10, 2, 11, 2),
    Sketcher.Constraint("Tangent", 11, 1, 12, 1),
    Sketcher.Constraint("Tangent", 12, 2, 13, 2),
    Sketcher.Constraint("Tangent", 13, 1, 14, 1),
    Sketcher.Constraint("Tangent", 14, 2, 15, 2),
    Sketcher.Constraint("Tangent", 15, 1, 8, 1),
    Sketcher.Constraint("Horizontal", 0),
    Sketcher.Constraint("Vertical", 2),
    Sketcher.Constraint("Horizontal", 4),
    Sketcher.Constraint("Vertical", 6),
    Sketcher.Constraint("Horizontal", 8),
    Sketcher.Constraint("Vertical", 10),
    Sketcher.Constraint("Horizontal", 12),
    Sketcher.Constraint("Vertical", 14),
    Sketcher.Constraint("Coincident", 9, 3, 7, 3),
    Sketcher.Constraint("Coincident", 11, 3, 5, 3),
    Sketcher.Constraint("Coincident", 13, 3, 3, 3),
    Sketcher.Constraint("Equal", 1, 3),
    Sketcher.Constraint("Equal", 3, 5),
    Sketcher.Constraint("Equal", 5, 7),
    Sketcher.Constraint("Equal", 13, 15),
    Sketcher.Constraint("Radius", 9, Q("0.25 in")),
    Sketcher.Constraint("DistanceY", 11, 1, -1, 1, Q("2 in")),
    Sketcher.Constraint("DistanceX", 0, 2, 0, 1, Q("3.25 in")),
    Sketcher.Constraint("Radius", 1, 6.45),
    Sketcher.Constraint("DistanceY", 2, 2, 2, 1, Q("5.8317 in")),
    Sketcher.Constraint("DistanceX", 1, 3, -1, 1, Q("1.625 in")),
])
pad2 = body.newObject("PartDesign::Pad", "Pad001")
pad2.Profile = sketch3
pad2.Length = Q("0.1181102 in")
pad2.Reversed = True

doc.recompute()
